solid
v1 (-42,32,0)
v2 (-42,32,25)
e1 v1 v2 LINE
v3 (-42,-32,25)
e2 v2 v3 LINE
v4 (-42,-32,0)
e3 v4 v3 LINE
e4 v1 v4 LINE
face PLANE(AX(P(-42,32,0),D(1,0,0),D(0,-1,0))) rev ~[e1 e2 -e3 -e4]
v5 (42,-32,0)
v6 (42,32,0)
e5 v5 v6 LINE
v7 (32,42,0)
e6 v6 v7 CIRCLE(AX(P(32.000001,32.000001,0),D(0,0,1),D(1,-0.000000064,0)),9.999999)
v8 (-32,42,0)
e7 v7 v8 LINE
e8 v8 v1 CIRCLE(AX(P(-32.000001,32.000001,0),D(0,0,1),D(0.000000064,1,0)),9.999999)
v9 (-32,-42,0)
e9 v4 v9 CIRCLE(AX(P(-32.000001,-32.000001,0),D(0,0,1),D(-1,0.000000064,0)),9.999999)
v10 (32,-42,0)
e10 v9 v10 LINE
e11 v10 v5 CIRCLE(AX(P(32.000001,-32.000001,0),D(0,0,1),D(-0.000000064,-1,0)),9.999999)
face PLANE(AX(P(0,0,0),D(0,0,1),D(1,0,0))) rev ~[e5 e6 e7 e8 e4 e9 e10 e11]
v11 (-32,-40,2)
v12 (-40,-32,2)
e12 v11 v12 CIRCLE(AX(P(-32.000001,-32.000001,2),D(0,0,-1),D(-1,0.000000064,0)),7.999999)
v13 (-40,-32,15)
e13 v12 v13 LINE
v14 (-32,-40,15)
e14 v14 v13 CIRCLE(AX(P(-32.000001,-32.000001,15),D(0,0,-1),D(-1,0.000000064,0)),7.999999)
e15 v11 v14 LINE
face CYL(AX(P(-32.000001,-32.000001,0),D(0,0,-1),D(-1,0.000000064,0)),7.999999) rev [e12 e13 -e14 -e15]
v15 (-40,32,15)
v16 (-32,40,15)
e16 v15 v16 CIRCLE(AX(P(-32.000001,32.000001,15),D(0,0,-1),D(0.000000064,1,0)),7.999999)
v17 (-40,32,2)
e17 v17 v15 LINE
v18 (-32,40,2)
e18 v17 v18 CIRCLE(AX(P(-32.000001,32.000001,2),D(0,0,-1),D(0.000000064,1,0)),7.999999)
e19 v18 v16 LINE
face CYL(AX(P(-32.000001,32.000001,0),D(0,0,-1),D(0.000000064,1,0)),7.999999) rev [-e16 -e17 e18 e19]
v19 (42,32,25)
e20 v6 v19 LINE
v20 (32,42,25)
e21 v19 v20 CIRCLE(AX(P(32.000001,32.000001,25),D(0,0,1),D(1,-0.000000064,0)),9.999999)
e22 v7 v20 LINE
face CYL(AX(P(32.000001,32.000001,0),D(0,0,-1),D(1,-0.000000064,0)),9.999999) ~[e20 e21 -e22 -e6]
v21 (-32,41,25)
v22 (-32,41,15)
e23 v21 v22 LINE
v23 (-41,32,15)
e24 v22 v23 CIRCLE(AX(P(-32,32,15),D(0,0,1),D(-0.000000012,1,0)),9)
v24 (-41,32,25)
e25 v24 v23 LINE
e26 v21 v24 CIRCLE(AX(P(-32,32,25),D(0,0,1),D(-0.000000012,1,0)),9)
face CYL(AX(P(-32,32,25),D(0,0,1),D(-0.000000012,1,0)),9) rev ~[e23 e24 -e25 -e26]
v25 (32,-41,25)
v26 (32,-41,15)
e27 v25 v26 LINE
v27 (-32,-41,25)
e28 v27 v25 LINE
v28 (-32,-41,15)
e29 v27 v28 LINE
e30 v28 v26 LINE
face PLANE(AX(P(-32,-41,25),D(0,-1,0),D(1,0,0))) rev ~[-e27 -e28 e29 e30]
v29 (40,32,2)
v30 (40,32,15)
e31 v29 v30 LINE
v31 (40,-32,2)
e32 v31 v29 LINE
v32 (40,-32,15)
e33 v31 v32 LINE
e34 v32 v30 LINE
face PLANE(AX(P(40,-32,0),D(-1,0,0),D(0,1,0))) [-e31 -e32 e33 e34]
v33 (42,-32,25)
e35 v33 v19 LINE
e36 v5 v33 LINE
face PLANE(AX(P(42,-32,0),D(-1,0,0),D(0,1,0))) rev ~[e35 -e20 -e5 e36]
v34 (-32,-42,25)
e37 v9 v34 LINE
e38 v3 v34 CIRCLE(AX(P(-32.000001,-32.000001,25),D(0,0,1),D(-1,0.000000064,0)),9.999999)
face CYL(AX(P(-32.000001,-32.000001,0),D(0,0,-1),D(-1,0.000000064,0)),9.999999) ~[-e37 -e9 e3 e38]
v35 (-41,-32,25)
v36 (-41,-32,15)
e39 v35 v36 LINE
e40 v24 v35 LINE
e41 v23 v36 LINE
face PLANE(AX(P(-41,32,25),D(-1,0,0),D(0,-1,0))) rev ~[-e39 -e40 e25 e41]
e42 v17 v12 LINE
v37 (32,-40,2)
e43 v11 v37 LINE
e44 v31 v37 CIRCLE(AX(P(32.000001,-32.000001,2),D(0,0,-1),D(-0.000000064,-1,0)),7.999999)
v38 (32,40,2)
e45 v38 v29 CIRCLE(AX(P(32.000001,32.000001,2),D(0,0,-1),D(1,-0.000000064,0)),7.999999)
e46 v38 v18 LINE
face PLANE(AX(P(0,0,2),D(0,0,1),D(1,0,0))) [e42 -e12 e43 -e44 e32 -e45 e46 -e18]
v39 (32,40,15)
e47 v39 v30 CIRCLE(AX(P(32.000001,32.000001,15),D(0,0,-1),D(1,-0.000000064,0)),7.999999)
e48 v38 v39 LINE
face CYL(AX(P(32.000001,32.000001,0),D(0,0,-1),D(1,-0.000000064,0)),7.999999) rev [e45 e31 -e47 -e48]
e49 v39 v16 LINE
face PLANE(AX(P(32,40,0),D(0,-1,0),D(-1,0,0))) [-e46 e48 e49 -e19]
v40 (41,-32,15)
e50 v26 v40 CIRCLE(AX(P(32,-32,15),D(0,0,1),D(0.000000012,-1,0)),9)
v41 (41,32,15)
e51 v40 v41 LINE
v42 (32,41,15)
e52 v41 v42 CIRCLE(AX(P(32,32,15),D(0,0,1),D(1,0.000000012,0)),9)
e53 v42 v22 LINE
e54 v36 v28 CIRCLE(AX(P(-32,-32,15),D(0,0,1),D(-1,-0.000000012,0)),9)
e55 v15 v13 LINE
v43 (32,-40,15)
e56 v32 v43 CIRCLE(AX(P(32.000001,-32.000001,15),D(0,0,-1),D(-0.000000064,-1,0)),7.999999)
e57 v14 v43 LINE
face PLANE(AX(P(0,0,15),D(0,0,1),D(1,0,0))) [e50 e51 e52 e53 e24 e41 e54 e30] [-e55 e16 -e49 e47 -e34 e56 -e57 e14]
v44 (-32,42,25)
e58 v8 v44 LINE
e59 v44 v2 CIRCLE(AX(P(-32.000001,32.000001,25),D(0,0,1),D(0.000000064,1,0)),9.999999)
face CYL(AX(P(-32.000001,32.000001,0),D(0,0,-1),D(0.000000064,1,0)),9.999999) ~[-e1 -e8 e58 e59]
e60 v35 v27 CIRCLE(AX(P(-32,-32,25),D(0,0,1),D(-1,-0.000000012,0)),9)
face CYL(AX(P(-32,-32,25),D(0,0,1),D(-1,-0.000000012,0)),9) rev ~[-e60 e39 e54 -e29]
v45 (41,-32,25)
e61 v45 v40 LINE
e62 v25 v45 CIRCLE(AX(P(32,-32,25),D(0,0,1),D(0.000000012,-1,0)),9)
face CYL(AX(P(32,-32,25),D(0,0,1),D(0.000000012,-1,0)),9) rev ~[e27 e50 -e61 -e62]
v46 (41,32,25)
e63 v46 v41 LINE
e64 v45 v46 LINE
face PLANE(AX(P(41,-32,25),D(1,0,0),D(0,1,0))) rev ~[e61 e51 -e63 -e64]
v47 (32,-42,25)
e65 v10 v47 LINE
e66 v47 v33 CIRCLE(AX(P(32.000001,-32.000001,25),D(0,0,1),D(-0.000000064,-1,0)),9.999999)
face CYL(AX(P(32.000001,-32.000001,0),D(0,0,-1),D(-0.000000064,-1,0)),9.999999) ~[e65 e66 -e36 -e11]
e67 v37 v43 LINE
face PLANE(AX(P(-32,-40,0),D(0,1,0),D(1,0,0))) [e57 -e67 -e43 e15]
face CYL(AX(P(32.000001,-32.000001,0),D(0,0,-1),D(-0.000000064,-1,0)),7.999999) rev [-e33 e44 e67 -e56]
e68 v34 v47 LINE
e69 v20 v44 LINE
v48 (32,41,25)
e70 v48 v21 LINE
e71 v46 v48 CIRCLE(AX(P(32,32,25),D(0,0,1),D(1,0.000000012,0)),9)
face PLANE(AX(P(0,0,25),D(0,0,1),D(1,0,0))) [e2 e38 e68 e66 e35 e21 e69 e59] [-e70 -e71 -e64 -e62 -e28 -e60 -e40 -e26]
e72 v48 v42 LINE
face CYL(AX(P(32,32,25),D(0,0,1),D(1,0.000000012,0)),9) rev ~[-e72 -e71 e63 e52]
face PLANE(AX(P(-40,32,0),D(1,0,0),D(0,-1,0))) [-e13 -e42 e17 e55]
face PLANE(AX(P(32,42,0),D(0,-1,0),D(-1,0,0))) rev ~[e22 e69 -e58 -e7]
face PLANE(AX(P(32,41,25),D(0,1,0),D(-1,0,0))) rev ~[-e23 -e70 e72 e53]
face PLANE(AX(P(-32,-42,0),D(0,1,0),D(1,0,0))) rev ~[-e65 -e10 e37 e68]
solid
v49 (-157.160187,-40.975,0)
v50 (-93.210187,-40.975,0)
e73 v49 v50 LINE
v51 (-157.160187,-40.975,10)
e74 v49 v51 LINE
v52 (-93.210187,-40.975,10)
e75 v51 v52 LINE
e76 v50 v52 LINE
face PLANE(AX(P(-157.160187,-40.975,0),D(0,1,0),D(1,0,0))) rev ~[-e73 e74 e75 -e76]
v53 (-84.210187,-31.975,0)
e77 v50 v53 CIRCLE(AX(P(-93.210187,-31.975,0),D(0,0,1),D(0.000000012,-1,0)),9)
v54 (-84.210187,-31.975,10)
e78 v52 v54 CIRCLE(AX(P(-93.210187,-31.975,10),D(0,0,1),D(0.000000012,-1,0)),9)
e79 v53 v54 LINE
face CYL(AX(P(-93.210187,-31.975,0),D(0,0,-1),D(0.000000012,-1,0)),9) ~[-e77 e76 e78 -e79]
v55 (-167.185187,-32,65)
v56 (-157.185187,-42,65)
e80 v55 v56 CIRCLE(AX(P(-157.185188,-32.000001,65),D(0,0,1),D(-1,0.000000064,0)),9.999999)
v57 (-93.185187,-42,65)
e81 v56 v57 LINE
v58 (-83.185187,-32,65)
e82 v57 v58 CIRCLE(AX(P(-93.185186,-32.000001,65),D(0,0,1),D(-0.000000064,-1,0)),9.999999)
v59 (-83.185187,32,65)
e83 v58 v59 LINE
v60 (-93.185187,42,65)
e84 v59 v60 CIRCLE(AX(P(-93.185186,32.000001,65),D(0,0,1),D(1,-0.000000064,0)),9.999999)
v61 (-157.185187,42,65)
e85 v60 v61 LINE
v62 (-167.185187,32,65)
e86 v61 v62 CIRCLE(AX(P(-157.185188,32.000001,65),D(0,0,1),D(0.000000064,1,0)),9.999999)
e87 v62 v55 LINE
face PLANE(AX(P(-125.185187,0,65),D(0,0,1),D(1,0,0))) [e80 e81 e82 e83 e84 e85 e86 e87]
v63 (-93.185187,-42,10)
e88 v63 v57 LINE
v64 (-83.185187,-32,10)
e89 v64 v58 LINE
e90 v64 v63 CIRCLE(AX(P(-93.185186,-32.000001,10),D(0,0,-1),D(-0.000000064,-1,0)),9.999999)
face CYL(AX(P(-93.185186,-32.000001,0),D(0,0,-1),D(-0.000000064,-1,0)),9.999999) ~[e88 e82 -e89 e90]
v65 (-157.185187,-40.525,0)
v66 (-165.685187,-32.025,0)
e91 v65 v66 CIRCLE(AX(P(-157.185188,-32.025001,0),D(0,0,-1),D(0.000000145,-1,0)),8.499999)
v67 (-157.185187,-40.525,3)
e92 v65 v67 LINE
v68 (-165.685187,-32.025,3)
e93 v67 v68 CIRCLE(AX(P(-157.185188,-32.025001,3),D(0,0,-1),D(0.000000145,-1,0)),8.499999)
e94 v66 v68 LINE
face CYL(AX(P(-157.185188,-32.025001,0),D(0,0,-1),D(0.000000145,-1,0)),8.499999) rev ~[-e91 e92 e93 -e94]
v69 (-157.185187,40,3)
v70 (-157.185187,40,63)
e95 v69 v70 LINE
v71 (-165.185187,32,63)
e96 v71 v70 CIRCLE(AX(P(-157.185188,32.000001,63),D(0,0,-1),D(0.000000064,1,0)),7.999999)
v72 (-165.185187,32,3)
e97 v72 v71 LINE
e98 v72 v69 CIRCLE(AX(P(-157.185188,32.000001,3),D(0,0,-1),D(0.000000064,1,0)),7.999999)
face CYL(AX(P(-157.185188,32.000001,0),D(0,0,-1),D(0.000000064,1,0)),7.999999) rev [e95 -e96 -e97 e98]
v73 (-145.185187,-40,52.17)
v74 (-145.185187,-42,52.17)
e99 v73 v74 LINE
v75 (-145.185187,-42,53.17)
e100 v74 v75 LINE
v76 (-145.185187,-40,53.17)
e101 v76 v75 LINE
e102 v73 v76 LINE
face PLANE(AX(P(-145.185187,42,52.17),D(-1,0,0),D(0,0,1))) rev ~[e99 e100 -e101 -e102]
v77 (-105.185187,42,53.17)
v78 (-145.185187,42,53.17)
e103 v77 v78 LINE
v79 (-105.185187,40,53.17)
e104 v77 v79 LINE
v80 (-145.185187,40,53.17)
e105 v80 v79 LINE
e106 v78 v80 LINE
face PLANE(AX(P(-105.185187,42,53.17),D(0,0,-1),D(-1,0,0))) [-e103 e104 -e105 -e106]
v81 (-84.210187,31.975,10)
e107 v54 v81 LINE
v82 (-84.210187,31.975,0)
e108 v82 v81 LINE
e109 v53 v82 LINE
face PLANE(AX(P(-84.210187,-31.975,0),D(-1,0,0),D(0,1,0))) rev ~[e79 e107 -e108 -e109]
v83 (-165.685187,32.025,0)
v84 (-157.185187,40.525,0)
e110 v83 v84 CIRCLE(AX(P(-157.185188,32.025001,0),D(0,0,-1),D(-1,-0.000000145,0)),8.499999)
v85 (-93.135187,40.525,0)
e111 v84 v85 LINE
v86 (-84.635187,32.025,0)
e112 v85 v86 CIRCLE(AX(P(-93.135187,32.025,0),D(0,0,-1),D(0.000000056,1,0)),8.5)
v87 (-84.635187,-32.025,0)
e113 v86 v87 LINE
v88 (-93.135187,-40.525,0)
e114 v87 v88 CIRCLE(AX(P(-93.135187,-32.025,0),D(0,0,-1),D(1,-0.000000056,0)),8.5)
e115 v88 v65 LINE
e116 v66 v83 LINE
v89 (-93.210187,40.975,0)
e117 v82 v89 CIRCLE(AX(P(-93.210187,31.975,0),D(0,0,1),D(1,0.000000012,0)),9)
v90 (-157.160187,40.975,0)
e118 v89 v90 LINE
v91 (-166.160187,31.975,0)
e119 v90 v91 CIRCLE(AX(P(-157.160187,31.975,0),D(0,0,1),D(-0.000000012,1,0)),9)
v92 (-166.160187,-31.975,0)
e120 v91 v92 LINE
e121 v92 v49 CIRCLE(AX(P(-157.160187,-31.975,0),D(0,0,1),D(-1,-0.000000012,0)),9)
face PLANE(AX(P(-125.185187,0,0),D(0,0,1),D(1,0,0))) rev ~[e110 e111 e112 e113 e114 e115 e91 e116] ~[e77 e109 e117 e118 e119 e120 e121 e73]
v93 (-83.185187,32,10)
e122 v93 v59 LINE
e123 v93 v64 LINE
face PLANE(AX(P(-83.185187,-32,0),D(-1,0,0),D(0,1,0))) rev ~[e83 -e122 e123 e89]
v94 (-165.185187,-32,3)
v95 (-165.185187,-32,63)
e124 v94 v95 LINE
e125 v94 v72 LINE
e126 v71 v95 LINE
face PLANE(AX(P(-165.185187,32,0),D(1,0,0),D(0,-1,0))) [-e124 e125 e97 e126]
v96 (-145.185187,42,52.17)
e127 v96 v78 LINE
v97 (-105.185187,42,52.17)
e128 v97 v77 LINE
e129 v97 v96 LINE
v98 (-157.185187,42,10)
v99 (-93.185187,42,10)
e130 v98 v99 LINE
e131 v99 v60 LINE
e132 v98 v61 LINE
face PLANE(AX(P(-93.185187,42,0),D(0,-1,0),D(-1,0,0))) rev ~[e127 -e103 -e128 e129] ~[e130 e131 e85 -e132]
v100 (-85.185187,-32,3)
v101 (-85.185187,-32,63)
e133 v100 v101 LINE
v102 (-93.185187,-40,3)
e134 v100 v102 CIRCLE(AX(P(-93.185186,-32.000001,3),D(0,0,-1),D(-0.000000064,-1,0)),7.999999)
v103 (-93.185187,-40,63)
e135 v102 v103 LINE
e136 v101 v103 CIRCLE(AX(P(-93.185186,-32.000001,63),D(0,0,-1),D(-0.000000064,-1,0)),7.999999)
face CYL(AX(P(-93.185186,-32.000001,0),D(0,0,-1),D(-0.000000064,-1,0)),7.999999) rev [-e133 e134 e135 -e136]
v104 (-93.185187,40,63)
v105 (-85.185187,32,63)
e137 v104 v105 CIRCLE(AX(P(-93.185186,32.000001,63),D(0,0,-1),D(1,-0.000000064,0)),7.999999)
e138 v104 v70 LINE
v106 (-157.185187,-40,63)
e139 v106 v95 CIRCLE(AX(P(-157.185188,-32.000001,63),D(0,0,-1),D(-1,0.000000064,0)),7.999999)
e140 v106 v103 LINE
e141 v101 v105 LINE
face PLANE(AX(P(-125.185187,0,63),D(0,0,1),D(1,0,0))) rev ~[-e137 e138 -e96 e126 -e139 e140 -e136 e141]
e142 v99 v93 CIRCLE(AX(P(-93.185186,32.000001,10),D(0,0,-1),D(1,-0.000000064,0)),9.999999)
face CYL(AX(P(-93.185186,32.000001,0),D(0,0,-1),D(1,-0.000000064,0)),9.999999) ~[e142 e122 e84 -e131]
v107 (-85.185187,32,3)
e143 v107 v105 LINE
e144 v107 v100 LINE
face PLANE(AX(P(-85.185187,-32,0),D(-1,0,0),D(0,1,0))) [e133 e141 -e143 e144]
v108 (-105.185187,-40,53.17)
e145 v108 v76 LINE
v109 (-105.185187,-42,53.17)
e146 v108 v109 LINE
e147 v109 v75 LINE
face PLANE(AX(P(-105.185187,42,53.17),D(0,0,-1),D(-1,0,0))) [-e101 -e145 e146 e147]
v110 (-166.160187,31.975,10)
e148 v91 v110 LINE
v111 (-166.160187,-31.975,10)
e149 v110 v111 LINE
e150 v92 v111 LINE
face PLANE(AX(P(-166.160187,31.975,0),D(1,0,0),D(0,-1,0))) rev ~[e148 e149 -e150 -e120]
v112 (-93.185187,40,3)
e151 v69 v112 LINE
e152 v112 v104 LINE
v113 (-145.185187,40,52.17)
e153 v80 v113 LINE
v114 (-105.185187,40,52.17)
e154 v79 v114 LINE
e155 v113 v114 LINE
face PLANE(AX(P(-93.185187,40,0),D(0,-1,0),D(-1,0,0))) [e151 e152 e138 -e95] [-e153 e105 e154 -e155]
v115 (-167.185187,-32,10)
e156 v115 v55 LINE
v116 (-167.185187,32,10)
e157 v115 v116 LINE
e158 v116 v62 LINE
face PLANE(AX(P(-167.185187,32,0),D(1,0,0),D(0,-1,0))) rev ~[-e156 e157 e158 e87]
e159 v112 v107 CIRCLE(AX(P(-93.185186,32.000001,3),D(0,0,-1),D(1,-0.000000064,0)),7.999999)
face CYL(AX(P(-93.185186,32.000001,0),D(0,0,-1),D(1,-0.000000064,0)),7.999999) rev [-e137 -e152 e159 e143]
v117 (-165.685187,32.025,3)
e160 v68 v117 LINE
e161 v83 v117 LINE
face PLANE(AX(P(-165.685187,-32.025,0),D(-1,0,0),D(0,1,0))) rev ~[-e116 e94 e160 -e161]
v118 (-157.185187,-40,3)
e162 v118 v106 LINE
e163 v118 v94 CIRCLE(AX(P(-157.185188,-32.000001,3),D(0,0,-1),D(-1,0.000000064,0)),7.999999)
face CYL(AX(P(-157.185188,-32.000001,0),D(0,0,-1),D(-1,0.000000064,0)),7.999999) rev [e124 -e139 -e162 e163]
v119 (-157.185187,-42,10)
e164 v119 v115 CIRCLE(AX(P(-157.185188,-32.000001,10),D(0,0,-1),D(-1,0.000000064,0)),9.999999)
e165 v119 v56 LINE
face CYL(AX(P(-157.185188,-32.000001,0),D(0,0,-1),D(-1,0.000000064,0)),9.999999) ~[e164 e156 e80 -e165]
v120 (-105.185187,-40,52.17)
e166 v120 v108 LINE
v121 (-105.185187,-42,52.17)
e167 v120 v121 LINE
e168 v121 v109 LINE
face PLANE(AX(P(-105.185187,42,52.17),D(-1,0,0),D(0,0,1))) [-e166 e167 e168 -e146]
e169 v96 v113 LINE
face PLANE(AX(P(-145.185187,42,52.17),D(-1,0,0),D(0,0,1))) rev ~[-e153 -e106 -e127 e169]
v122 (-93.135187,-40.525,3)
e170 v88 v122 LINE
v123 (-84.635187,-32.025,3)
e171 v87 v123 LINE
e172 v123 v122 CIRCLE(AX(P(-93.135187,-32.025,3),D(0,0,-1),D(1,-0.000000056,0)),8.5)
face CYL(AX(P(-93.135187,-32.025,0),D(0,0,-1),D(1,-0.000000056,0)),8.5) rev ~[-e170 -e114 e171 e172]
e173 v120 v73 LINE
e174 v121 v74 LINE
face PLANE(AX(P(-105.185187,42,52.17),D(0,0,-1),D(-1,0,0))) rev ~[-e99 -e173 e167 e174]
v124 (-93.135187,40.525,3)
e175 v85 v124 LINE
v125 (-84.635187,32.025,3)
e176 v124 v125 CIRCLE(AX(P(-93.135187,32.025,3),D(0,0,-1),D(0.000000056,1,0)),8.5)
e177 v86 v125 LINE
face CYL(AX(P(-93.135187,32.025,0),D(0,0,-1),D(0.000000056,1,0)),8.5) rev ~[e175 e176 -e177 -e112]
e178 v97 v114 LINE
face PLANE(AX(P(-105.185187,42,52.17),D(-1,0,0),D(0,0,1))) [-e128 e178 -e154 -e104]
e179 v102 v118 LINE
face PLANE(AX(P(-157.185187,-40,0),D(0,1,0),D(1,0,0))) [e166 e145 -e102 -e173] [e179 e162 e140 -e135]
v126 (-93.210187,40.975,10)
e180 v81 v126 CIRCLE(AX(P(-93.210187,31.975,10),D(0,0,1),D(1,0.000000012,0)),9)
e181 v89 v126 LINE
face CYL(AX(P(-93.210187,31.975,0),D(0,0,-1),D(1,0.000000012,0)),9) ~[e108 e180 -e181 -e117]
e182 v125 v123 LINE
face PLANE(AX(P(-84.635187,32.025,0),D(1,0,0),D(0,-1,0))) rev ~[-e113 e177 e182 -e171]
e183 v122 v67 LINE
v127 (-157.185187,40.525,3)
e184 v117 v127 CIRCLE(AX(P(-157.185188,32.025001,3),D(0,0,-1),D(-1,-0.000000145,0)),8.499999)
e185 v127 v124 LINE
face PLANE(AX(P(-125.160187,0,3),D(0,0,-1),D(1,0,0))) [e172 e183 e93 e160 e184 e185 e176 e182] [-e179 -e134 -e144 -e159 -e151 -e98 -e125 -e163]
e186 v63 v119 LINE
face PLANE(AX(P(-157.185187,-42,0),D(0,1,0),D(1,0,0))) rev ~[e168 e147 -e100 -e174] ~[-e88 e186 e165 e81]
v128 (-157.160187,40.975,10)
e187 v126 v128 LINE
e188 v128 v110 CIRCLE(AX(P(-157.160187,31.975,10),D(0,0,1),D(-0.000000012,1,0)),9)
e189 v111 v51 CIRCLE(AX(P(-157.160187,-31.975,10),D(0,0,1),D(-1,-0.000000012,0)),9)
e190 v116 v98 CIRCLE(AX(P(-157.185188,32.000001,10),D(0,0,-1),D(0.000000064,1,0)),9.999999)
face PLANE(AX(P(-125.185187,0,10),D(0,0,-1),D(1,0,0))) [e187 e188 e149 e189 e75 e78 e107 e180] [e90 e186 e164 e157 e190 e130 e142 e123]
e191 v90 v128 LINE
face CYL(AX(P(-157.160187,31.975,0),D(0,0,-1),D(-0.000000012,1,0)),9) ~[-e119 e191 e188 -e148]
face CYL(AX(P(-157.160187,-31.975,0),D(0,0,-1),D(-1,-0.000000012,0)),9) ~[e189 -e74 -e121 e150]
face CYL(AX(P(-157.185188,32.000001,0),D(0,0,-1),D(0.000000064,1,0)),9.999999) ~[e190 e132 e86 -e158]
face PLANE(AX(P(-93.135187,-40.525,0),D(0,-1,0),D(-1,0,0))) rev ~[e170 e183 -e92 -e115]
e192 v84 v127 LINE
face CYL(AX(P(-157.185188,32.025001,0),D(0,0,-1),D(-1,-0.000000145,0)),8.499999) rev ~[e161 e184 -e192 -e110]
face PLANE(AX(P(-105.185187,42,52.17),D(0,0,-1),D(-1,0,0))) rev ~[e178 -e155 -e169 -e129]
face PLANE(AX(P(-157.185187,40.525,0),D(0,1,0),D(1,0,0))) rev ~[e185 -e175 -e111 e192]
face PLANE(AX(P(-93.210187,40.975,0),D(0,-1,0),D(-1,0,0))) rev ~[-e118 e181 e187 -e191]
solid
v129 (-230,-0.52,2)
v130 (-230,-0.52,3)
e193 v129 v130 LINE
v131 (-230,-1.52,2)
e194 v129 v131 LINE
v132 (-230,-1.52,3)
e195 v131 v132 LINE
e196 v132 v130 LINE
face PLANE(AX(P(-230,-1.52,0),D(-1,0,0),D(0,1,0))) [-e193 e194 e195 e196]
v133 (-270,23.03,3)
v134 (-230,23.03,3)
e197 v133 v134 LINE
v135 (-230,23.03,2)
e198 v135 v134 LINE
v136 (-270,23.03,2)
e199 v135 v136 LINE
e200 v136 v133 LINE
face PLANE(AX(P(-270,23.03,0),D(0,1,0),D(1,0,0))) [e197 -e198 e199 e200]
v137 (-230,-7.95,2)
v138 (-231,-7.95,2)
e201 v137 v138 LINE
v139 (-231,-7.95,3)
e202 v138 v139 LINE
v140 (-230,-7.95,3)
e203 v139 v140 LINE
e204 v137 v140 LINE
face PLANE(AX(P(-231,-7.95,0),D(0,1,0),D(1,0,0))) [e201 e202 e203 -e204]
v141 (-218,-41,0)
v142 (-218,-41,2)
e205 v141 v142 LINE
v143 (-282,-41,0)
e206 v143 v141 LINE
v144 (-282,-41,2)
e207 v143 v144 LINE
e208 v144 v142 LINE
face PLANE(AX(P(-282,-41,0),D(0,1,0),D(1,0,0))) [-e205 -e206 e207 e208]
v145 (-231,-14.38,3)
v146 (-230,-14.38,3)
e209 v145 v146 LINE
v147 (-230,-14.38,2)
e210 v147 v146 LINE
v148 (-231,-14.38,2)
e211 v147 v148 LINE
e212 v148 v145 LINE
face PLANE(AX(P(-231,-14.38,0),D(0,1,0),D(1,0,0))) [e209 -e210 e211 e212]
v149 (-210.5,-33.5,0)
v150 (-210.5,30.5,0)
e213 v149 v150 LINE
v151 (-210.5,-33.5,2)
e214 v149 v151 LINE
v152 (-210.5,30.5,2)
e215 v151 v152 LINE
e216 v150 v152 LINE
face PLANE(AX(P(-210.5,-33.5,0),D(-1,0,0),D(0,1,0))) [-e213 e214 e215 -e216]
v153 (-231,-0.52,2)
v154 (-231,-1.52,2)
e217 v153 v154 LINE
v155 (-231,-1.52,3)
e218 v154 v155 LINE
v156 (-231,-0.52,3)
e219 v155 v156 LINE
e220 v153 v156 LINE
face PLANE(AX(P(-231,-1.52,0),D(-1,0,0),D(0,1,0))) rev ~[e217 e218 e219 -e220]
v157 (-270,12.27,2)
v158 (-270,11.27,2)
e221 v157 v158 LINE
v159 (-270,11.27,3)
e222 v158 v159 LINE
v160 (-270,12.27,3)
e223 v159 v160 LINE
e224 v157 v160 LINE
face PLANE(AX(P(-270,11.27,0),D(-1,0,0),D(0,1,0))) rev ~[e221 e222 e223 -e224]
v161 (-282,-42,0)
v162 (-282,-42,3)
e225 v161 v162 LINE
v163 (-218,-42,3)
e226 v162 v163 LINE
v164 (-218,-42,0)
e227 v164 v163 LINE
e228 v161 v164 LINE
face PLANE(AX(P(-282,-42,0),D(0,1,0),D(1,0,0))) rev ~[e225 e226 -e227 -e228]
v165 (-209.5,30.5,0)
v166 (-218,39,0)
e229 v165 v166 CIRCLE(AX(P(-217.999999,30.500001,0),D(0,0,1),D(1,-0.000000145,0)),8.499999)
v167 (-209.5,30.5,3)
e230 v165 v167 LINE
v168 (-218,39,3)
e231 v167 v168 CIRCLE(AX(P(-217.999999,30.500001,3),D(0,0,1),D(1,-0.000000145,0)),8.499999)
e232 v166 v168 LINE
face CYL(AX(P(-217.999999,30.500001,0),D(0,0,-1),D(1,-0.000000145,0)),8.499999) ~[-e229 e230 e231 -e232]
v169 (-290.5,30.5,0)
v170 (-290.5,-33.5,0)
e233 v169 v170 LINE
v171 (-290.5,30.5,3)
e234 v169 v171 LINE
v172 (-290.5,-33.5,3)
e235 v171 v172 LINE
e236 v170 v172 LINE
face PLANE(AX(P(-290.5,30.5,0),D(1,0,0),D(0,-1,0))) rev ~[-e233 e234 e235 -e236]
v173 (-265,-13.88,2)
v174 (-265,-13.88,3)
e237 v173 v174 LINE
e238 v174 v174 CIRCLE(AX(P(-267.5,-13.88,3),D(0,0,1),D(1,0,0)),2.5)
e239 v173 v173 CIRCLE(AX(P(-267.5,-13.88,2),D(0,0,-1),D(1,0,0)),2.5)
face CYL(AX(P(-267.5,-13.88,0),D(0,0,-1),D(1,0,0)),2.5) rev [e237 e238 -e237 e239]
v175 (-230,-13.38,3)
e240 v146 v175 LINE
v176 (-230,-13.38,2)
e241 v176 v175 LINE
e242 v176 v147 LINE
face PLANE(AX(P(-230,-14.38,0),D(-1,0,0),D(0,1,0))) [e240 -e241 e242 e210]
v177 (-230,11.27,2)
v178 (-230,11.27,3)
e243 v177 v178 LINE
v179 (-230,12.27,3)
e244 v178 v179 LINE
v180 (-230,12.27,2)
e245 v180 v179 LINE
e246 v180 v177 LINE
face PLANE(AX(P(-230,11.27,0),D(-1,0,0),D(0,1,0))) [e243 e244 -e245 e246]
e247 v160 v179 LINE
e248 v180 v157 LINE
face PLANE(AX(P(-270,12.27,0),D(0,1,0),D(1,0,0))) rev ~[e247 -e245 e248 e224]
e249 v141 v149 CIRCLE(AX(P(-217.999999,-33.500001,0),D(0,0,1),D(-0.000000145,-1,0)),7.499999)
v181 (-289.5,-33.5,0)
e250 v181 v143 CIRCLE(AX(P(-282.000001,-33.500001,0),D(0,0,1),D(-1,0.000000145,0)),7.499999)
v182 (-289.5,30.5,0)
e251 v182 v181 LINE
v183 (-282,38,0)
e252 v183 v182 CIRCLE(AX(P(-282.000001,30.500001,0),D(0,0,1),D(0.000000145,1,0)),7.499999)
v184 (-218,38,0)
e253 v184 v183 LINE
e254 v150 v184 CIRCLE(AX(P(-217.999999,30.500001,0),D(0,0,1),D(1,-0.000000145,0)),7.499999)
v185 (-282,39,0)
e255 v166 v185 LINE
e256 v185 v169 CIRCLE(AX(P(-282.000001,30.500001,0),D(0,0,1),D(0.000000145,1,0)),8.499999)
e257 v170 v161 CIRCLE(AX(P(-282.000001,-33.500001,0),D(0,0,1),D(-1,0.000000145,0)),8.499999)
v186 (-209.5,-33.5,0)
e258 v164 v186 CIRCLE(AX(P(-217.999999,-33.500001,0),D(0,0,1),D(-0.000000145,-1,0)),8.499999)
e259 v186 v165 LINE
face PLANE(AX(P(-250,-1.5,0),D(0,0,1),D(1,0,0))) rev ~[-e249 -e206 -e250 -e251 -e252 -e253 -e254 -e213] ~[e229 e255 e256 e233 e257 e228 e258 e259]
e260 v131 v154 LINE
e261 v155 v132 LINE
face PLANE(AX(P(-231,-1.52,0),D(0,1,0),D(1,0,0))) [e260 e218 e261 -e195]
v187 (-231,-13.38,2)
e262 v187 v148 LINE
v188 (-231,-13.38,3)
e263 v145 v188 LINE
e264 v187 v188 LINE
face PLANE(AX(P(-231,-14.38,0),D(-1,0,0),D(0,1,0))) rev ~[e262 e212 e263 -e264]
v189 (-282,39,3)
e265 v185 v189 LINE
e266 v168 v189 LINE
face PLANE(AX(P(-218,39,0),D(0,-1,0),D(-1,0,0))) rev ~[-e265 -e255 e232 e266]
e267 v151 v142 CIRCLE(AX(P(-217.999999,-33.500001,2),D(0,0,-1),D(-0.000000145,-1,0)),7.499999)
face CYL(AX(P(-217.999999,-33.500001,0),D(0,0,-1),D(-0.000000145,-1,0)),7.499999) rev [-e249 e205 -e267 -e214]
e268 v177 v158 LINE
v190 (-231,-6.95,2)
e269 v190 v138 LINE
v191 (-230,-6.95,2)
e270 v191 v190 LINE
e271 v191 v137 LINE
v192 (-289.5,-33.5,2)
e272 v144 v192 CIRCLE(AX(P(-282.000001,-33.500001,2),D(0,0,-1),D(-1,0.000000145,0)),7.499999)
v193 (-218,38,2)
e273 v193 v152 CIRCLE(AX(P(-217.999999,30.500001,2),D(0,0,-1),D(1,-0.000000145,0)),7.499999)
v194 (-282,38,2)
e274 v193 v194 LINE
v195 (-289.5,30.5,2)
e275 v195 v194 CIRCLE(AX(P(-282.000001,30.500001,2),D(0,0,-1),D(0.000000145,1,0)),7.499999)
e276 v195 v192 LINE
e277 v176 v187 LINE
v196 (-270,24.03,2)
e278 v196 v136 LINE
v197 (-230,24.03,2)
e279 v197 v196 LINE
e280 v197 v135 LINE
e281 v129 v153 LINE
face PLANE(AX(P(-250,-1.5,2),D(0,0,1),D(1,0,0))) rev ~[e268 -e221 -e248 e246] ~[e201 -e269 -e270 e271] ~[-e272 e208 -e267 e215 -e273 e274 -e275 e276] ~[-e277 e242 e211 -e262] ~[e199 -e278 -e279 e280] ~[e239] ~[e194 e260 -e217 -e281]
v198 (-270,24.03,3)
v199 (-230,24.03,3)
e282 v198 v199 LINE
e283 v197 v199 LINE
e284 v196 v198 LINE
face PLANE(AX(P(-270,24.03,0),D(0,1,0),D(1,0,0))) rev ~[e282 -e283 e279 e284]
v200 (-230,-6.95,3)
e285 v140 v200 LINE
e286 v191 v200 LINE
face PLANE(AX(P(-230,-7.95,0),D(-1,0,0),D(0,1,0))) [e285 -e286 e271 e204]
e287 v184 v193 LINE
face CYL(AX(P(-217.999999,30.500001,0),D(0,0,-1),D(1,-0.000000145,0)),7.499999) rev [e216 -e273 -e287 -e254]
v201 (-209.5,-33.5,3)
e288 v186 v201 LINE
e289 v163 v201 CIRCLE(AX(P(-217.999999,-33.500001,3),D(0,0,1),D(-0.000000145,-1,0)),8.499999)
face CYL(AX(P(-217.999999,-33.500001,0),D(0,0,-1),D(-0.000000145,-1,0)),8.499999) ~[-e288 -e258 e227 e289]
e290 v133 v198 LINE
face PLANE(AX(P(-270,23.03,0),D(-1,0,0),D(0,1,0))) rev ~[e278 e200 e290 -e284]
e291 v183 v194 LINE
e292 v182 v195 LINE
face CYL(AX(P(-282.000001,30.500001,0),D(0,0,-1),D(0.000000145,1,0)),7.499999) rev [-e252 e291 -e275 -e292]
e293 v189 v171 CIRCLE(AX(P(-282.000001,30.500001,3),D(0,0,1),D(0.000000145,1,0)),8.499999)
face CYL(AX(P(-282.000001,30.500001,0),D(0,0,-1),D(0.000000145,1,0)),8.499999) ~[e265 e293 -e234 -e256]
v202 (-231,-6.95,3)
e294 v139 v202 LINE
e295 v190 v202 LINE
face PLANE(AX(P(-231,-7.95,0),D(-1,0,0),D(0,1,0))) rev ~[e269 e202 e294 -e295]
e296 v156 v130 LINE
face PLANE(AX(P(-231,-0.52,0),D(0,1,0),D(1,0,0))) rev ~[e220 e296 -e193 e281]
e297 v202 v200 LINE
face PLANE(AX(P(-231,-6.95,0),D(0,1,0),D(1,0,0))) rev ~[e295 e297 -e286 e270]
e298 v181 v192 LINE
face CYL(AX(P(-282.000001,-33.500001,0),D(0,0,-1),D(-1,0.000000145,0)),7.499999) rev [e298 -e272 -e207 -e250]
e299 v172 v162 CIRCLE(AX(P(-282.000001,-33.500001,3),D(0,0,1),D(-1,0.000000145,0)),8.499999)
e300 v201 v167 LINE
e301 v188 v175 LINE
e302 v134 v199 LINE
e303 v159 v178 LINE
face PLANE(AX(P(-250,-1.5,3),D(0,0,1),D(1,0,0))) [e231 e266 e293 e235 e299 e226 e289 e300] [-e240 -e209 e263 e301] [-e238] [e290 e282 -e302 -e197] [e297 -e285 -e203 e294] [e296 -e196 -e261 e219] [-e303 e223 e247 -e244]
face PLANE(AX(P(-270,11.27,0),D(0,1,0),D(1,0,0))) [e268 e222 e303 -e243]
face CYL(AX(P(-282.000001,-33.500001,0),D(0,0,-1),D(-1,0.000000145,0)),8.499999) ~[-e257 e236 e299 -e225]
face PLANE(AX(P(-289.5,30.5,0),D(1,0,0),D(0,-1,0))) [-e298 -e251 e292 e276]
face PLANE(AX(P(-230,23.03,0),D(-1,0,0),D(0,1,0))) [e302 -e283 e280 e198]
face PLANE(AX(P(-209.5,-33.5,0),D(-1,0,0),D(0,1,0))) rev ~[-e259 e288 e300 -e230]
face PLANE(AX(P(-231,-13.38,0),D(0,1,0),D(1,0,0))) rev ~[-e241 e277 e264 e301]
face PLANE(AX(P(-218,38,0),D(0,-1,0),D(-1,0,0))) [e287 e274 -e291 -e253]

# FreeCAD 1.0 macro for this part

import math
import FreeCAD as App
import Part
import Sketcher

V = App.Vector
Q = App.Units.Quantity


def faces_at(feature, points):
    """Names of the faces that lie closest to the given points."""
    faces = feature.Shape.Faces
    near = lambda p: min(range(len(faces)), key=lambda i: faces[i].distToShape(Part.Vertex(*p))[0])
    return sorted({f"Face{near(p) + 1}" for p in points})

doc = App.newDocument("Part")
body = doc.addObject("PartDesign::Body", "Body")

# Sketch on XY plane
sketch1 = doc.addObject("Sketcher::SketchObject", "Sketch")
body.addObject(sketch1)
sketch1.AttachmentSupport = (doc.XY_Plane, [""])
sketch1.MapMode = "FlatFace"
sketch1.addGeometry([
    Part.ArcOfCircle(Part.Circle(V(-32, -32, 0), V(0, 0, 1), 10), math.radians(180), math.radians(270)),  # 0
    Part.LineSegment(V(-32, -42, 0), V(32, -42, 0)),  # 1
    Part.ArcOfCircle(Part.Circle(V(32, -32, 0), V(0, 0, 1), 10), math.radians(-90), math.radians(0)),  # 2
    Part.LineSegment(V(42, -32, 0), V(42, 32, 0)),  # 3
    Part.ArcOfCircle(Part.Circle(V(32, 32, 0), V(0, 0, 1), 10), math.radians(0), math.radians(90)),  # 4
    Part.LineSegment(V(32, 42, 0), V(-32, 42, 0)),  # 5
    Part.ArcOfCircle(Part.Circle(V(-32, 32, 0), V(0, 0, 1), 10), math.radians(90), math.radians(180)),  # 6
    Part.LineSegment(V(-42, 32, 0), V(-42, -32, 0)),  # 7
], False)
sketch1.addConstraint([
    Sketcher.Constraint("Tangent", 0, 2, 1, 1),
    Sketcher.Constraint("Tangent", 1, 2, 2, 1),
    Sketcher.Constraint("Tangent", 2, 2, 3, 1),
    Sketcher.Constraint("Tangent", 3, 2, 4, 1),
    Sketcher.Constraint("Tangent", 4, 2, 5, 1),
    Sketcher.Constraint("Tangent", 5, 2, 6, 1),
    Sketcher.Constraint("Tangent", 6, 2, 7, 1),
    Sketcher.Constraint("Tangent", 7, 2, 0, 1),
    Sketcher.Constraint("Horizontal", 1),
    Sketcher.Constraint("Vertical", 3),
    Sketcher.Constraint("Horizontal", 5),
    Sketcher.Constraint("Vertical", 7),
    Sketcher.Constraint("Equal", 0, 2),
    Sketcher.Constraint("Equal", 2, 4),
    Sketcher.Constraint("Equal", 4, 6),
    Sketcher.Constraint("Symmetric", 0, 3, 4, 3, -1, 1),
    Sketcher.Constraint("Equal", 5, 3),
    Sketcher.Constraint("Radius", 0, Q("9.999999 mm")),
    Sketcher.Constraint("DistanceX", 1, 1, 1, 2, Q("64 mm")),
])
pad1 = doc.addObject("PartDesign::Pad", "Pad")
body.addObject(pad1)
pad1.Profile = sketch1
pad1.Length = 25
doc.recompute()

thickness = doc.addObject("PartDesign::Thickness", "Thickness")
body.addObject(thickness)
thickness.Base = (pad1, faces_at(pad1, [(0, 0, 25)]))
thickness.Value = 2
thickness.Reversed = True
thickness.Join = "Arc"

# Sketch on XY plane
sketch2 = doc.addObject("Sketcher::SketchObject", "Sketch001")
body.addObject(sketch2)
sketch2.AttachmentSupport = (doc.XY_Plane, [""])
sketch2.MapMode = "FlatFace"
sketch2.AttachmentOffset = App.Placement(V(0, 0, 25), App.Rotation())
sketch2.addGeometry([
    Part.LineSegment(V(32, 41, 0), V(-32, 41, 0)),  # 0
    Part.ArcOfCircle(Part.Circle(V(-32, 32, 0), V(0, 0, 1), 9), math.radians(90), math.radians(180)),  # 1
    Part.LineSegment(V(-41, 32, 0), V(-41, -32, 0)),  # 2
    Part.ArcOfCircle(Part.Circle(V(-32, -32, 0), V(0, 0, 1), 9), math.radians(-180), math.radians(-90)),  # 3
    Part.LineSegment(V(-32, -41, 0), V(32, -41, 0)),  # 4
    Part.ArcOfCircle(Part.Circle(V(32, -32, 0), V(0, 0, 1), 9), math.radians(-90), math.radians(0)),  # 5
    Part.LineSegment(V(41, -32, 0), V(41, 32, 0)),  # 6
    Part.ArcOfCircle(Part.Circle(V(32, 32, 0), V(0, 0, 1), 9), math.radians(0), math.radians(90)),  # 7
], False)
sketch2.addConstraint([
    Sketcher.Constraint("Tangent", 0, 2, 1, 1),
    Sketcher.Constraint("Tangent", 1, 2, 2, 1),
    Sketcher.Constraint("Tangent", 2, 2, 3, 1),
    Sketcher.Constraint("Tangent", 3, 2, 4, 1),
    Sketcher.Constraint("Tangent", 4, 2, 5, 1),
    Sketcher.Constraint("Tangent", 5, 2, 6, 1),
    Sketcher.Constraint("Tangent", 6, 2, 7, 1),
    Sketcher.Constraint("Tangent", 7, 2, 0, 1),
    Sketcher.Constraint("Horizontal", 0),
    Sketcher.Constraint("Vertical", 2),
    Sketcher.Constraint("Horizontal", 4),
    Sketcher.Constraint("Vertical", 6),
    Sketcher.Constraint("Equal", 1, 3),
    Sketcher.Constraint("Equal", 3, 5),
    Sketcher.Constraint("Equal", 5, 7),
    Sketcher.Constraint("Symmetric", 1, 3, 5, 3, -1, 1),
    Sketcher.Constraint("Equal", 4, 2),
    Sketcher.Constraint("Radius", 1, Q("9 mm")),
    Sketcher.Constraint("DistanceX", 0, 2, 0, 1, Q("64 mm")),
])
pocket1 = doc.addObject("PartDesign::Pocket", "Pocket")
body.addObject(pocket1)
pocket1.Profile = sketch2
pocket1.Length = 10
body2 = doc.addObject("PartDesign::Body", "Body001")

# Sketch on XY plane
sketch3 = doc.addObject("Sketcher::SketchObject", "Sketch002")
body2.addObject(sketch3)
sketch3.AttachmentSupport = (doc.getObject("XY_Plane001"), [""])
sketch3.MapMode = "FlatFace"
sketch3.addGeometry([
    Part.LineSegment(V(-157, -42, 0), V(-93, -42, 0)),  # 0
    Part.ArcOfCircle(Part.Circle(V(-93, -32, 0), V(0, 0, 1), 10), math.radians(-90), math.radians(0)),  # 1
    Part.LineSegment(V(-83, -32, 0), V(-83, 32, 0)),  # 2
    Part.ArcOfCircle(Part.Circle(V(-93, 32, 0), V(0, 0, 1), 10), math.radians(0), math.radians(90)),  # 3
    Part.LineSegment(V(-93, 42, 0), V(-157, 42, 0)),  # 4
    Part.ArcOfCircle(Part.Circle(V(-157, 32, 0), V(0, 0, 1), 10), math.radians(90), math.radians(180)),  # 5
    Part.LineSegment(V(-167, 32, 0), V(-167, -32, 0)),  # 6
    Part.ArcOfCircle(Part.Circle(V(-157, -32, 0), V(0, 0, 1), 10), math.radians(180), math.radians(270)),  # 7
], False)
sketch3.addConstraint([
    Sketcher.Constraint("Tangent", 0, 2, 1, 1),
    Sketcher.Constraint("Tangent", 1, 2, 2, 1),
    Sketcher.Constraint("Tangent", 2, 2, 3, 1),
    Sketcher.Constraint("Tangent", 3, 2, 4, 1),
    Sketcher.Constraint("Tangent", 4, 2, 5, 1),
    Sketcher.Constraint("Tangent", 5, 2, 6, 1),
    Sketcher.Constraint("Tangent", 6, 2, 7, 1),
    Sketcher.Constraint("Tangent", 7, 2, 0, 1),
    Sketcher.Constraint("Horizontal", 0),
    Sketcher.Constraint("Vertical", 2),
    Sketcher.Constraint("Horizontal", 4),
    Sketcher.Constraint("Vertical", 6),
    Sketcher.Constraint("Equal", 1, 3),
    Sketcher.Constraint("Equal", 3, 5),
    Sketcher.Constraint("Equal", 5, 7),
    Sketcher.Constraint("Equal", 4, 2),
    Sketcher.Constraint("Radius", 1, Q("9.999999 mm")),
    Sketcher.Constraint("DistanceX", 0, 1, 0, 2, Q("64 mm")),
    Sketcher.Constraint("DistanceY", 1, 3, -1, 1, Q("32.000001 mm")),
    Sketcher.Constraint("DistanceX", 1, 3, -1, 1, Q("93.185186 mm")),
])
pad2 = doc.addObject("PartDesign::Pad", "Pad001")
body2.addObject(pad2)
pad2.Profile = sketch3
pad2.Length = 65
doc.recompute()

thickness2 = doc.addObject("PartDesign::Thickness", "Thickness001")
body2.addObject(thickness2)
thickness2.Base = (pad2, faces_at(pad2, [(-125.185, 0, 0)]))
thickness2.Value = 2
thickness2.Reversed = True
thickness2.Join = "Arc"

# Sketch on XY plane
sketch4 = doc.addObject("Sketcher::SketchObject", "Sketch003")
body2.addObject(sketch4)
sketch4.AttachmentSupport = (doc.getObject("XY_Plane001"), [""])
sketch4.MapMode = "FlatFace"
sketch4.addGeometry([
    Part.LineSegment(V(-171, -49, 0), V(-171, 49, 0)),  # 0
    Part.LineSegment(V(-171, 49, 0), V(-80, 49, 0)),  # 1
    Part.LineSegment(V(-80, 49, 0), V(-80, -49, 0)),  # 2
    Part.LineSegment(V(-80, -49, 0), V(-171, -49, 0)),  # 3
    Part.LineSegment(V(-166, 32, 0), V(-166, -32, 0)),  # 4
    Part.ArcOfCircle(Part.Circle(V(-157, -32, 0), V(0, 0, 1), 9), math.radians(-180), math.radians(-90)),  # 5
    Part.LineSegment(V(-157, -41, 0), V(-93, -41, 0)),  # 6
    Part.ArcOfCircle(Part.Circle(V(-93, -32, 0), V(0, 0, 1), 9), math.radians(-90), math.radians(0)),  # 7
    Part.LineSegment(V(-84, -32, 0), V(-84, 32, 0)),  # 8
    Part.ArcOfCircle(Part.Circle(V(-93, 32, 0), V(0, 0, 1), 9), math.radians(0), math.radians(90)),  # 9
    Part.LineSegment(V(-93, 41, 0), V(-157, 41, 0)),  # 10
    Part.ArcOfCircle(Part.Circle(V(-157, 32, 0), V(0, 0, 1), 9), math.radians(90), math.radians(180)),  # 11
], False)
sketch4.addConstraint([
    Sketcher.Constraint("Coincident", 0, 2, 1, 1),
    Sketcher.Constraint("Coincident", 1, 2, 2, 1),
    Sketcher.Constraint("Coincident", 2, 2, 3, 1),
    Sketcher.Constraint("Coincident", 3, 2, 0, 1),
    Sketcher.Constraint("Tangent", 4, 2, 5, 1),
    Sketcher.Constraint("Tangent", 5, 2, 6, 1),
    Sketcher.Constraint("Tangent", 6, 2, 7, 1),
    Sketcher.Constraint("Tangent", 7, 2, 8, 1),
    Sketcher.Constraint("Tangent", 8, 2, 9, 1),
    Sketcher.Constraint("Tangent", 9, 2, 10, 1),
    Sketcher.Constraint("Tangent", 10, 2, 11, 1),
    Sketcher.Constraint("Tangent", 11, 2, 4, 1),
    Sketcher.Constraint("Vertical", 0),
    Sketcher.Constraint("Horizontal", 1),
    Sketcher.Constraint("Vertical", 2),
    Sketcher.Constraint("Horizontal", 3),
    Sketcher.Constraint("Vertical", 4),
    Sketcher.Constraint("Horizontal", 6),
    Sketcher.Constraint("Vertical", 8),
    Sketcher.Constraint("Horizontal", 10),
    Sketcher.Constraint("Equal", 5, 7),
    Sketcher.Constraint("Equal", 7, 9),
    Sketcher.Constraint("Equal", 9, 11),
    Sketcher.Constraint("Equal", 10, 4),
    Sketcher.Constraint("Radius", 5, Q("9 mm")),
    Sketcher.Constraint("DistanceX", 6, 1, 6, 2, Q("63.95 mm")),
    Sketcher.Constraint("DistanceY", 5, 3, -1, 1, Q("31.975 mm")),
    Sketcher.Constraint("DistanceX", 1, 1, 1, 2, Q("91.175536 mm")),
    Sketcher.Constraint("DistanceY", 0, 1, 0, 2, Q("98.510154 mm")),
    Sketcher.Constraint("DistanceX", 1, 2, -1, 1, Q("79.597419 mm")),
    Sketcher.Constraint("DistanceX", 0, 2, 11, 3, Q("13.612768 mm")),
    Sketcher.Constraint("DistanceY", -1, 1, 0, 2, Q("49.255077 mm")),
])
pocket2 = doc.addObject("PartDesign::Pocket", "Pocket001")
body2.addObject(pocket2)
pocket2.Profile = sketch4
pocket2.Length = 10
pocket2.Reversed = True

# Sketch on XY plane
sketch5 = doc.addObject("Sketcher::SketchObject", "Sketch004")
body2.addObject(sketch5)
sketch5.AttachmentSupport = (doc.getObject("XY_Plane001"), [""])
sketch5.MapMode = "FlatFace"
sketch5.addGeometry([
    Part.LineSegment(V(-157, 41, 0), V(-93, 41, 0)),  # 0
    Part.ArcOfCircle(Part.Circle(V(-93, 32, 0), V(0, 0, 1), 9), math.radians(0), math.radians(90)),  # 1
    Part.LineSegment(V(-85, 32, 0), V(-85, -32, 0)),  # 2
    Part.ArcOfCircle(Part.Circle(V(-93, -32, 0), V(0, 0, 1), 9), math.radians(-90), math.radians(0)),  # 3
    Part.LineSegment(V(-93, -41, 0), V(-157, -41, 0)),  # 4
    Part.ArcOfCircle(Part.Circle(V(-157, -32, 0), V(0, 0, 1), 8), math.radians(180), math.radians(270)),  # 5
    Part.LineSegment(V(-166, -32, 0), V(-166, 32, 0)),  # 6
    Part.ArcOfCircle(Part.Circle(V(-157, 32, 0), V(0, 0, 1), 8), math.radians(90), math.radians(180)),  # 7
], False)
sketch5.addConstraint([
    Sketcher.Constraint("Tangent", 0, 2, 1, 2),
    Sketcher.Constraint("Tangent", 1, 1, 2, 1),
    Sketcher.Constraint("Tangent", 2, 2, 3, 2),
    Sketcher.Constraint("Tangent", 3, 1, 4, 1),
    Sketcher.Constraint("Tangent", 4, 2, 5, 2),
    Sketcher.Constraint("Tangent", 5, 1, 6, 1),
    Sketcher.Constraint("Tangent", 6, 2, 7, 2),
    Sketcher.Constraint("Tangent", 7, 1, 0, 1),
    Sketcher.Constraint("Horizontal", 0),
    Sketcher.Constraint("Vertical", 2),
    Sketcher.Constraint("Horizontal", 4),
    Sketcher.Constraint("Vertical", 6),
    Sketcher.Constraint("Equal", 1, 3),
    Sketcher.Constraint("Equal", 3, 5),
    Sketcher.Constraint("Equal", 5, 7),
    Sketcher.Constraint("Equal", 4, 2),
    Sketcher.Constraint("Radius", 1, Q("8.5 mm")),
    Sketcher.Constraint("DistanceX", 0, 1, 0, 2, Q("64.05 mm")),
    Sketcher.Constraint("DistanceY", -1, 1, 1, 3, Q("32.025 mm")),
    Sketcher.Constraint("DistanceX", 5, 3, -1, 1, Q("157.185188 mm")),
])
pocket3 = doc.addObject("PartDesign::Pocket", "Pocket002")
body2.addObject(pocket3)
pocket3.Profile = sketch5
pocket3.Length = 3
pocket3.Reversed = True

# Sketch on XZ plane
sketch6 = doc.addObject("Sketcher::SketchObject", "Sketch005")
body2.addObject(sketch6)
sketch6.AttachmentSupport = (doc.getObject("XZ_Plane001"), [""])
sketch6.MapMode = "FlatFace"
sketch6.AttachmentOffset = App.Placement(V(0, 0, -42), App.Rotation())
sketch6.addGeometry([
    Part.LineSegment(V(-105.2, 53.2, 0), V(-105.2, 52.2, 0)),
    Part.LineSegment(V(-105.2, 52.2, 0), V(-145.2, 52.2, 0)),
    Part.LineSegment(V(-145.2, 52.2, 0), V(-145.2, 53.2, 0)),
    Part.LineSegment(V(-145.2, 53.2, 0), V(-105.2, 53.2, 0)),
], False)
sketch6.addConstraint([
    Sketcher.Constraint("Coincident", 0, 2, 1, 1),
    Sketcher.Constraint("Coincident", 1, 2, 2, 1),
    Sketcher.Constraint("Coincident", 2, 2, 3, 1),
    Sketcher.Constraint("Coincident", 3, 2, 0, 1),
    Sketcher.Constraint("Vertical", 0),
    Sketcher.Constraint("Horizontal", 1),
    Sketcher.Constraint("Vertical", 2),
    Sketcher.Constraint("Horizontal", 3),
    Sketcher.Constraint("DistanceX", 1, 2, 1, 1, Q("40 mm")),
    Sketcher.Constraint("DistanceY", 0, 2, 0, 1, Q("1 mm")),
    Sketcher.Constraint("DistanceY", -1, 1, 0, 2, Q("52.17 mm")),
    Sketcher.Constraint("DistanceX", 0, 2, -1, 1, Q("105.185187 mm")),
])
pocket4 = doc.addObject("PartDesign::Pocket", "Pocket003")
body2.addObject(pocket4)
pocket4.Profile = sketch6
pocket4.Type = "ThroughAll"
pocket4.Reversed = True
body3 = doc.addObject("PartDesign::Body", "Body002")

# Sketch on XY plane
sketch7 = doc.addObject("Sketcher::SketchObject", "Sketch006")
body3.addObject(sketch7)
sketch7.AttachmentSupport = (doc.getObject("XY_Plane002"), [""])
sketch7.MapMode = "FlatFace"
sketch7.addGeometry([
    Part.ArcOfCircle(Part.Circle(V(-282, -33.5, 0), V(0, 0, 1), 8.5), math.radians(180), math.radians(270)),  # 0
    Part.LineSegment(V(-282, -42, 0), V(-218, -42, 0)),  # 1
    Part.ArcOfCircle(Part.Circle(V(-218, -33.5, 0), V(0, 0, 1), 8.5), math.radians(-90), math.radians(0)),  # 2
    Part.LineSegment(V(-209.5, -33.5, 0), V(-209.5, 30.5, 0)),  # 3
    Part.ArcOfCircle(Part.Circle(V(-218, 30.5, 0), V(0, 0, 1), 8.5), math.radians(0), math.radians(90)),  # 4
    Part.LineSegment(V(-218, 39, 0), V(-282, 39, 0)),  # 5
    Part.ArcOfCircle(Part.Circle(V(-282, 30.5, 0), V(0, 0, 1), 8.5), math.radians(90), math.radians(180)),  # 6
    Part.LineSegment(V(-290.5, 30.5, 0), V(-290.5, -33.5, 0)),  # 7
    Part.Circle(V(-267.5, -13.9, 0), V(0, 0, 1), 2.5),  # 8
    Part.LineSegment(V(-230, -14.4, 0), V(-231, -14.4, 0)),  # 9
    Part.LineSegment(V(-231, -14.4, 0), V(-231, -13.4, 0)),  # 10
    Part.LineSegment(V(-231, -13.4, 0), V(-230, -13.4, 0)),  # 11
    Part.LineSegment(V(-230, -13.4, 0), V(-230, -14.4, 0)),  # 12
    Part.LineSegment(V(-230, -8, 0), V(-231, -8, 0)),  # 13
    Part.LineSegment(V(-231, -8, 0), V(-231, -7, 0)),  # 14
    Part.LineSegment(V(-231, -7, 0), V(-230, -7, 0)),  # 15
    Part.LineSegment(V(-230, -7, 0), V(-230, -8, 0)),  # 16
    Part.LineSegment(V(-230, -1.5, 0), V(-231, -1.5, 0)),  # 17
    Part.LineSegment(V(-231, -1.5, 0), V(-231, -0.5, 0)),  # 18
    Part.LineSegment(V(-231, -0.5, 0), V(-230, -0.5, 0)),  # 19
    Part.LineSegment(V(-230, -0.5, 0), V(-230, -1.5, 0)),  # 20
    Part.LineSegment(V(-230, 11.3, 0), V(-270, 11.3, 0)),  # 21
    Part.LineSegment(V(-270, 11.3, 0), V(-270, 12.3, 0)),  # 22
    Part.LineSegment(V(-270, 12.3, 0), V(-230, 12.3, 0)),  # 23
    Part.LineSegment(V(-230, 12.3, 0), V(-230, 11.3, 0)),  # 24
    Part.LineSegment(V(-230, 23, 0), V(-270, 23, 0)),  # 25
    Part.LineSegment(V(-270, 23, 0), V(-270, 24, 0)),  # 26
    Part.LineSegment(V(-270, 24, 0), V(-230, 24, 0)),  # 27
    Part.LineSegment(V(-230, 24, 0), V(-230, 23, 0)),  # 28
], False)
sketch7.addConstraint([
    Sketcher.Constraint("Tangent", 0, 2, 1, 1),
    Sketcher.Constraint("Tangent", 1, 2, 2, 1),
    Sketcher.Constraint("Tangent", 2, 2, 3, 1),
    Sketcher.Constraint("Tangent", 3, 2, 4, 1),
    Sketcher.Constraint("Tangent", 4, 2, 5, 1),
    Sketcher.Constraint("Tangent", 5, 2, 6, 1),
    Sketcher.Constraint("Tangent", 6, 2, 7, 1),
    Sketcher.Constraint("Tangent", 7, 2, 0, 1),
    Sketcher.Constraint("Coincident", 9, 2, 10, 1),
    Sketcher.Constraint("Coincident", 10, 2, 11, 1),
    Sketcher.Constraint("Coincident", 11, 2, 12, 1),
    Sketcher.Constraint("Coincident", 12, 2, 9, 1),
    Sketcher.Constraint("Coincident", 13, 2, 14, 1),
    Sketcher.Constraint("Coincident", 14, 2, 15, 1),
    Sketcher.Constraint("Coincident", 15, 2, 16, 1),
    Sketcher.Constraint("Coincident", 16, 2, 13, 1),
    Sketcher.Constraint("Coincident", 17, 2, 18, 1),
    Sketcher.Constraint("Coincident", 18, 2, 19, 1),
    Sketcher.Constraint("Coincident", 19, 2, 20, 1),
    Sketcher.Constraint("Coincident", 20, 2, 17, 1),
    Sketcher.Constraint("Coincident", 21, 2, 22, 1),
    Sketcher.Constraint("Coincident", 22, 2, 23, 1),
    Sketcher.Constraint("Coincident", 23, 2, 24, 1),
    Sketcher.Constraint("Coincident", 24, 2, 21, 1),
    Sketcher.Constraint("Coincident", 25, 2, 26, 1),
    Sketcher.Constraint("Coincident", 26, 2, 27, 1),
    Sketcher.Constraint("Coincident", 27, 2, 28, 1),
    Sketcher.Constraint("Coincident", 28, 2, 25, 1),
    Sketcher.Constraint("Horizontal", 1),
    Sketcher.Constraint("Vertical", 3),
    Sketcher.Constraint("Horizontal", 5),
    Sketcher.Constraint("Vertical", 7),
    Sketcher.Constraint("Horizontal", 9),
    Sketcher.Constraint("Vertical", 10),
    Sketcher.Constraint("Horizontal", 11),
    Sketcher.Constraint("Vertical", 12),
    Sketcher.Constraint("Horizontal", 13),
    Sketcher.Constraint("Vertical", 14),
    Sketcher.Constraint("Horizontal", 15),
    Sketcher.Constraint("Vertical", 16),
    Sketcher.Constraint("Horizontal", 17),
    Sketcher.Constraint("Vertical", 18),
    Sketcher.Constraint("Horizontal", 19),
    Sketcher.Constraint("Vertical", 20),
    Sketcher.Constraint("Horizontal", 21),
    Sketcher.Constraint("Vertical", 22),
    Sketcher.Constraint("Horizontal", 23),
    Sketcher.Constraint("Vertical", 24),
    Sketcher.Constraint("Horizontal", 25),
    Sketcher.Constraint("Vertical", 26),
    Sketcher.Constraint("Horizontal", 27),
    Sketcher.Constraint("Vertical", 28),
    Sketcher.Constraint("Equal", 0, 2),
    Sketcher.Constraint("Equal", 2, 4),
    Sketcher.Constraint("Equal", 4, 6),
    Sketcher.Constraint("Vertical", 10, 2, 13, 2),
    Sketcher.Constraint("Vertical", 12, 2, 15, 2),
    Sketcher.Constraint("Vertical", 14, 2, 17, 2),
    Sketcher.Constraint("Vertical", 16, 2, 19, 2),
    Sketcher.Constraint("Vertical", 20, 2, 23, 2),
    Sketcher.Constraint("Vertical", 22, 2, 25, 2),
    Sketcher.Constraint("Vertical", 24, 2, 27, 2),
    Sketcher.Constraint("Equal", 5, 3),
    Sketcher.Constraint("Equal", 19, 10),
    Sketcher.Constraint("Equal", 12, 14),
    Sketcher.Constraint("Equal", 16, 18),
    Sketcher.Constraint("Equal", 20, 22),
    Sketcher.Constraint("Equal", 24, 26),
    Sketcher.Constraint("Diameter", 8, Q("5 mm")),
    Sketcher.Constraint("Radius", 0, Q("8.499999 mm")),
    Sketcher.Constraint("DistanceX", 1, 1, 1, 2, Q("64 mm")),
    Sketcher.Constraint("DistanceX", 9, 2, 9, 1, Q("1 mm")),
    Sketcher.Constraint("DistanceX", 21, 2, 21, 1, Q("40 mm")),
    Sketcher.Constraint("DistanceX", 0, 3, -1, 1, Q("282.000001 mm")),
    Sketcher.Constraint("DistanceY", 0, 2, -1, 1, Q("42 mm")),
    Sketcher.Constraint("DistanceX", 9, 2, -1, 1, Q("231 mm")),
    Sketcher.Constraint("DistanceX", 8, 3, 2, 2, Q("58 mm")),
    Sketcher.Constraint("DistanceY", 9, 2, 8, 3, Q("0.5 mm")),
    Sketcher.Constraint("DistanceY", 8, 3, -1, 1, Q("13.88 mm")),
    Sketcher.Constraint("DistanceY", 13, 2, -1, 1, Q("7.95 mm")),
    Sketcher.Constraint("DistanceY", 17, 2, -1, 1, Q("1.52 mm")),
    Sketcher.Constraint("DistanceY", -1, 1, 21, 2, Q("11.27 mm")),
    Sketcher.Constraint("DistanceY", -1, 1, 25, 2, Q("23.03 mm")),
])
pad3 = doc.addObject("PartDesign::Pad", "Pad002")
body3.addObject(pad3)
pad3.Profile = sketch7
pad3.Length = 3
doc.recompute()

thickness3 = doc.addObject("PartDesign::Thickness", "Thickness002")
body3.addObject(thickness3)
thickness3.Base = (pad3, faces_at(pad3, [(-250, -1.5, 0)]))
thickness3.Value = 1
thickness3.Reversed = True
thickness3.Join = "Arc"

# Sketch on XY plane
sketch8 = doc.addObject("Sketcher::SketchObject", "Sketch007")
body3.addObject(sketch8)
sketch8.AttachmentSupport = (doc.getObject("XY_Plane002"), [""])
sketch8.MapMode = "FlatFace"
sketch8.AttachmentOffset = App.Placement(V(0, 0, 2), App.Rotation())
sketch8.addGeometry([
    Part.LineSegment(V(-277, -23, 0), V(-277, 30, 0)),
    Part.LineSegment(V(-277, 30, 0), V(-221, 30, 0)),
    Part.LineSegment(V(-221, 30, 0), V(-221, -23, 0)),
    Part.LineSegment(V(-221, -23, 0), V(-277, -23, 0)),
], False)
sketch8.addConstraint([
    Sketcher.Constraint("Coincident", 0, 2, 1, 1),
    Sketcher.Constraint("Coincident", 1, 2, 2, 1),
    Sketcher.Constraint("Coincident", 2, 2, 3, 1),
    Sketcher.Constraint("Coincident", 3, 2, 0, 1),
    Sketcher.Constraint("Vertical", 0),
    Sketcher.Constraint("Horizontal", 1),
    Sketcher.Constraint("Vertical", 2),
    Sketcher.Constraint("Horizontal", 3),
    Sketcher.Constraint("DistanceX", 1, 1, 1, 2, Q("56.260198 mm")),
    Sketcher.Constraint("DistanceY", 0, 1, 0, 2, Q("52.576504 mm")),
    Sketcher.Constraint("DistanceX", 0, 2, -1, 1, Q("277.36783 mm")),
    Sketcher.Constraint("DistanceY", -1, 1, 0, 2, Q("29.971957 mm")),
])
pocket5 = doc.addObject("PartDesign::Pocket", "Pocket004")
body3.addObject(pocket5)
pocket5.Profile = sketch8
pocket5.Length = 25

doc.recompute()
